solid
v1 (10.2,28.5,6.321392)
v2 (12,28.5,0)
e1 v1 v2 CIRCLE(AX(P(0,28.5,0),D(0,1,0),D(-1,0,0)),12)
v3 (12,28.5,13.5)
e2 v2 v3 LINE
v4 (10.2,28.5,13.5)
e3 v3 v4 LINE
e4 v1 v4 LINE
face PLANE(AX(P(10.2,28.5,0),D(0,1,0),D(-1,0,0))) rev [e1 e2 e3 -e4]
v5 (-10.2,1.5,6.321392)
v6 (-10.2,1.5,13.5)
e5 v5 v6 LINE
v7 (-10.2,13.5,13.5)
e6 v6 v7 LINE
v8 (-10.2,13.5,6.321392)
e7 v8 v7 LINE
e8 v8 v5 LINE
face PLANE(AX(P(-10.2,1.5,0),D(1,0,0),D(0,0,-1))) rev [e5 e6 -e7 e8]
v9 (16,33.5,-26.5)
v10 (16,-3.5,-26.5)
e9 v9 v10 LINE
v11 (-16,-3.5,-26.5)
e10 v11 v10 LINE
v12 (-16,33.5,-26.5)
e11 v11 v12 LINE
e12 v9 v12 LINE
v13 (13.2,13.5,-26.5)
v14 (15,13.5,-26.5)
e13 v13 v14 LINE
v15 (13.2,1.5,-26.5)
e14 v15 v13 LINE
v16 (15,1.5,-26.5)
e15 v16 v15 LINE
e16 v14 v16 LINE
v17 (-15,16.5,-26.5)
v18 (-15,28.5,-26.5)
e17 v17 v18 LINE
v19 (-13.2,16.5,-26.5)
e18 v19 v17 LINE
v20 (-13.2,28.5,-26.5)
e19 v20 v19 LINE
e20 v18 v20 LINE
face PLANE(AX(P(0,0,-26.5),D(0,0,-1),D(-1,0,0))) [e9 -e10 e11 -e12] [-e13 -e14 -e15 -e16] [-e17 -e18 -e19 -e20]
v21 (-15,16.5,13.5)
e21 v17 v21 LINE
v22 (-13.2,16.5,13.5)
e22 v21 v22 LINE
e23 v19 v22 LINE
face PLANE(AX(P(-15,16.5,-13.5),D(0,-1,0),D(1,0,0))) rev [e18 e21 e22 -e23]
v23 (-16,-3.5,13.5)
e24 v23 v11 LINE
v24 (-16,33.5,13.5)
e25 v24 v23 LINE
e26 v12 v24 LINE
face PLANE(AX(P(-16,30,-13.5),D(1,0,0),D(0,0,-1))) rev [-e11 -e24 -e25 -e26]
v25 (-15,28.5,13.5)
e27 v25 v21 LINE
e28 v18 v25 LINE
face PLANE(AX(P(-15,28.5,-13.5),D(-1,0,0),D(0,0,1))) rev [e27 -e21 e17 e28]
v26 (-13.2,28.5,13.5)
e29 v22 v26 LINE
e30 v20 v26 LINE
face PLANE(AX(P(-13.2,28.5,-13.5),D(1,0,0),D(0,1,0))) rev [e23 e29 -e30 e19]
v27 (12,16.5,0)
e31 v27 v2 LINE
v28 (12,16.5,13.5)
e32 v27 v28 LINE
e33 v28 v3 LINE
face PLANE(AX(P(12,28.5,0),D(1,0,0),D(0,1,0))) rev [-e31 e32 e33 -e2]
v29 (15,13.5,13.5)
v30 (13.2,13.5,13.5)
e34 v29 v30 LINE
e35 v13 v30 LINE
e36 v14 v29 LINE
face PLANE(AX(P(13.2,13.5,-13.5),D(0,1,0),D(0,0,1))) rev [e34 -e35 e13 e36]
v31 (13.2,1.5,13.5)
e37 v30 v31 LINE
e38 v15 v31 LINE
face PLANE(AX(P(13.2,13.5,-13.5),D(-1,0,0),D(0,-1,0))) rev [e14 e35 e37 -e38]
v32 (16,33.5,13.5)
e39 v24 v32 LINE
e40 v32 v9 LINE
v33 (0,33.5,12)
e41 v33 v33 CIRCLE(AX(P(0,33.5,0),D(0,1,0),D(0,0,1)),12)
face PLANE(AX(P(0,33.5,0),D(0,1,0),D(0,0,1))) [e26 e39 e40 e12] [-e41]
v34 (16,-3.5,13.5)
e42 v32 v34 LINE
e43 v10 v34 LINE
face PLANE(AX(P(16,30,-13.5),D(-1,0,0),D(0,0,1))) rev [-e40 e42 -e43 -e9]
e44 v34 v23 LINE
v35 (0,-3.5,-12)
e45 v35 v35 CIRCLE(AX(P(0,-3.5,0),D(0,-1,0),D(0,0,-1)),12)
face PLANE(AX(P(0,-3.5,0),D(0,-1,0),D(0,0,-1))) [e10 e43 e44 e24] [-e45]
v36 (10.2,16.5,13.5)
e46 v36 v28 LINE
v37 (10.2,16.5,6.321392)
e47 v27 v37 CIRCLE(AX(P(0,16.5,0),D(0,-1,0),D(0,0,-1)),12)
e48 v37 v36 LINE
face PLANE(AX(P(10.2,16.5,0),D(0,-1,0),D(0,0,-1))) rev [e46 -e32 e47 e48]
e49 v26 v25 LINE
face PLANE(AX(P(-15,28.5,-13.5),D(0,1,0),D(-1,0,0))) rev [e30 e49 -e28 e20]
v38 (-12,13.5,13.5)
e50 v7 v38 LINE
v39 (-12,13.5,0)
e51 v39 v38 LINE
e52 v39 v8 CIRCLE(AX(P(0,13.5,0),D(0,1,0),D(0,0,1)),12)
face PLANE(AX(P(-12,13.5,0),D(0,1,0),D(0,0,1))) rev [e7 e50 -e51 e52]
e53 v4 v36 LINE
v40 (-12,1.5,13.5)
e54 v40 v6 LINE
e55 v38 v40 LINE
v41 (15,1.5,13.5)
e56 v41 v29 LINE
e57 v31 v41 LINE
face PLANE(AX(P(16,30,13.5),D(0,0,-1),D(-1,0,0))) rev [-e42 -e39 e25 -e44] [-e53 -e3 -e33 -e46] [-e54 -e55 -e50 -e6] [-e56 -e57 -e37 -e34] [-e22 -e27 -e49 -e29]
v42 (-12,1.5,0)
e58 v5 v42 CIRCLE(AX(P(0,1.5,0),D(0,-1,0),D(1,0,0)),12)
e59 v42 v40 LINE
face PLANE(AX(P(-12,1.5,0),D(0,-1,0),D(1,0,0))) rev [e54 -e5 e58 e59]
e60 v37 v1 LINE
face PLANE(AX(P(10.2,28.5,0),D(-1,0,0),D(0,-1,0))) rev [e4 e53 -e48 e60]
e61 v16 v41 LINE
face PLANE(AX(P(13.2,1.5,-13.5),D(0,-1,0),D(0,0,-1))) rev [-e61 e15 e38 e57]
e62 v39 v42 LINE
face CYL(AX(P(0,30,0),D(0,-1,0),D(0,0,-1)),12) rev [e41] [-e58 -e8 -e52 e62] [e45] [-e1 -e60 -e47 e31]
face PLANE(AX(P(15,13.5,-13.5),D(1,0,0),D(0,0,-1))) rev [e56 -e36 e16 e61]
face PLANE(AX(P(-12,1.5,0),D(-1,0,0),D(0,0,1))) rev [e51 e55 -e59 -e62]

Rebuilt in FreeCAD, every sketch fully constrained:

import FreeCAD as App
import Part
import Sketcher

doc = App.newDocument("Part")
body = doc.addObject("PartDesign::Body", "Body")

# Sketch on XZ plane
sketch1 = body.newObject("Sketcher::SketchObject", "Sketch")
sketch1.AttachmentSupport = (doc.getObject("XZ_Plane"), [""])
sketch1.MapMode = "FlatFace"
sketch1.addGeometry(Part.LineSegment(App.Vector(-16, -14, 0), App.Vector(-16, 14, 0)), False)
sketch1.addGeometry(Part.LineSegment(App.Vector(-16, 14, 0), App.Vector(16, 14, 0)), False)
sketch1.addGeometry(Part.LineSegment(App.Vector(16, 14, 0), App.Vector(16, -14, 0)), False)
sketch1.addGeometry(Part.LineSegment(App.Vector(16, -14, 0), App.Vector(-16, -14, 0)), False)
sketch1.addGeometry(Part.Circle(App.Vector(0, 0, 0), App.Vector(0, 0, 1), 12), False)
sketch1.addConstraint(Sketcher.Constraint("Coincident", 0, 2, 1, 1))
sketch1.addConstraint(Sketcher.Constraint("Coincident", 1, 2, 2, 1))
sketch1.addConstraint(Sketcher.Constraint("Coincident", 2, 2, 3, 1))
sketch1.addConstraint(Sketcher.Constraint("Coincident", 3, 2, 0, 1))
sketch1.addConstraint(Sketcher.Constraint("Vertical", 0))
sketch1.addConstraint(Sketcher.Constraint("Horizontal", 1))
sketch1.addConstraint(Sketcher.Constraint("Vertical", 2))
sketch1.addConstraint(Sketcher.Constraint("Horizontal", 3))
sketch1.addConstraint(Sketcher.Constraint("Coincident", 4, 3, -1, 1))
sketch1.addConstraint(Sketcher.Constraint("Symmetric", 0, 2, 2, 2, -1, 1))
sketch1.addConstraint(Sketcher.Constraint("Diameter", 4, 24.0))
sketch1.addConstraint(Sketcher.Constraint("DistanceX", 1, 1, 1, 2, 32.0))
sketch1.addConstraint(Sketcher.Constraint("DistanceY", 0, 1, 0, 2, 27.0))
pad1 = body.newObject("PartDesign::Pad", "Pad")
pad1.Profile = sketch1
pad1.Length = 30
pad1.Reversed = True

# Sketch on XY plane
sketch2 = body.newObject("Sketcher::SketchObject", "Sketch001")
sketch2.AttachmentSupport = (doc.getObject("XY_Plane"), [""])
sketch2.MapMode = "FlatFace"
sketch2.AttachmentOffset = App.Placement(App.Vector(0, 0, 13.5), App.Rotation())
sketch2.addGeometry(Part.LineSegment(App.Vector(-12, 13.5, 0), App.Vector(-12, 1.5, 0)), False)
sketch2.addGeometry(Part.LineSegment(App.Vector(-12, 1.5, 0), App.Vector(-10.2, 1.5, 0)), False)
sketch2.addGeometry(Part.LineSegment(App.Vector(-10.2, 1.5, 0), App.Vector(-10.2, 13.5, 0)), False)
sketch2.addGeometry(Part.LineSegment(App.Vector(-10.2, 13.5, 0), App.Vector(-12, 13.5, 0)), False)
sketch2.addGeometry(Part.LineSegment(App.Vector(10.2, 28.5, 0), App.Vector(10.2, 16.5, 0)), False)
sketch2.addGeometry(Part.LineSegment(App.Vector(10.2, 16.5, 0), App.Vector(12, 16.5, 0)), False)
sketch2.addGeometry(Part.LineSegment(App.Vector(12, 16.5, 0), App.Vector(12, 28.5, 0)), False)
sketch2.addGeometry(Part.LineSegment(App.Vector(12, 28.5, 0), App.Vector(10.2, 28.5, 0)), False)
sketch2.addConstraint(Sketcher.Constraint("Coincident", 0, 2, 1, 1))
sketch2.addConstraint(Sketcher.Constraint("Coincident", 1, 2, 2, 1))
sketch2.addConstraint(Sketcher.Constraint("Coincident", 2, 2, 3, 1))
sketch2.addConstraint(Sketcher.Constraint("Coincident", 3, 2, 0, 1))
sketch2.addConstraint(Sketcher.Constraint("Coincident", 4, 2, 5, 1))
sketch2.addConstraint(Sketcher.Constraint("Coincident", 5, 2, 6, 1))
sketch2.addConstraint(Sketcher.Constraint("Coincident", 6, 2, 7, 1))
sketch2.addConstraint(Sketcher.Constraint("Coincident", 7, 2, 4, 1))
sketch2.addConstraint(Sketcher.Constraint("Vertical", 0))
sketch2.addConstraint(Sketcher.Constraint("Horizontal", 1))
sketch2.addConstraint(Sketcher.Constraint("Vertical", 2))
sketch2.addConstraint(Sketcher.Constraint("Horizontal", 3))
sketch2.addConstraint(Sketcher.Constraint("Vertical", 4))
sketch2.addConstraint(Sketcher.Constraint("Horizontal", 5))
sketch2.addConstraint(Sketcher.Constraint("Vertical", 6))
sketch2.addConstraint(Sketcher.Constraint("Horizontal", 7))
sketch2.addConstraint(Sketcher.Constraint("Equal", 3, 5))
sketch2.addConstraint(Sketcher.Constraint("Equal", 2, 4))
sketch2.addConstraint(Sketcher.Constraint("DistanceY", 0, 2, 0, 1, 12.0))
sketch2.addConstraint(Sketcher.Constraint("DistanceX", 1, 1, 1, 2, 1.8))
sketch2.addConstraint(Sketcher.Constraint("DistanceX", 0, 2, -1, 1, 12.0))
sketch2.addConstraint(Sketcher.Constraint("DistanceX", -1, 1, 5, 2, 12.0))
sketch2.addConstraint(Sketcher.Constraint("DistanceY", 2, 2, 4, 2, 3.0))
sketch2.addConstraint(Sketcher.Constraint("DistanceY", -1, 1, 0, 2, 1.5))
pocket1 = body.newObject("PartDesign::Pocket", "Pocket")
pocket1.Profile = sketch2
pocket1.Length = 13.5

# Sketch on XY plane
sketch3 = body.newObject("Sketcher::SketchObject", "Sketch002")
sketch3.AttachmentSupport = (doc.getObject("XY_Plane"), [""])
sketch3.MapMode = "FlatFace"
sketch3.AttachmentOffset = App.Placement(App.Vector(0, 0, 13.5), App.Rotation())
sketch3.addGeometry(Part.LineSegment(App.Vector(-15, 28.5, 0), App.Vector(-15, 16.5, 0)), False)
sketch3.addGeometry(Part.LineSegment(App.Vector(-15, 16.5, 0), App.Vector(-13.2, 16.5, 0)), False)
sketch3.addGeometry(Part.LineSegment(App.Vector(-13.2, 16.5, 0), App.Vector(-13.2, 28.5, 0)), False)
sketch3.addGeometry(Part.LineSegment(App.Vector(-13.2, 28.5, 0), App.Vector(-15, 28.5, 0)), False)
sketch3.addGeometry(Part.LineSegment(App.Vector(13.2, 13.5, 0), App.Vector(13.2, 1.5, 0)), False)
sketch3.addGeometry(Part.LineSegment(App.Vector(13.2, 1.5, 0), App.Vector(15, 1.5, 0)), False)
sketch3.addGeometry(Part.LineSegment(App.Vector(15, 1.5, 0), App.Vector(15, 13.5, 0)), False)
sketch3.addGeometry(Part.LineSegment(App.Vector(15, 13.5, 0), App.Vector(13.2, 13.5, 0)), False)
sketch3.addConstraint(Sketcher.Constraint("Coincident", 0, 2, 1, 1))
sketch3.addConstraint(Sketcher.Constraint("Coincident", 1, 2, 2, 1))
sketch3.addConstraint(Sketcher.Constraint("Coincident", 2, 2, 3, 1))
sketch3.addConstraint(Sketcher.Constraint("Coincident", 3, 2, 0, 1))
sketch3.addConstraint(Sketcher.Constraint("Coincident", 4, 2, 5, 1))
sketch3.addConstraint(Sketcher.Constraint("Coincident", 5, 2, 6, 1))
sketch3.addConstraint(Sketcher.Constraint("Coincident", 6, 2, 7, 1))
sketch3.addConstraint(Sketcher.Constraint("Coincident", 7, 2, 4, 1))
sketch3.addConstraint(Sketcher.Constraint("Vertical", 0))
sketch3.addConstraint(Sketcher.Constraint("Horizontal", 1))
sketch3.addConstraint(Sketcher.Constraint("Vertical", 2))
sketch3.addConstraint(Sketcher.Constraint("Horizontal", 3))
sketch3.addConstraint(Sketcher.Constraint("Vertical", 4))
sketch3.addConstraint(Sketcher.Constraint("Horizontal", 5))
sketch3.addConstraint(Sketcher.Constraint("Vertical", 6))
sketch3.addConstraint(Sketcher.Constraint("Horizontal", 7))
sketch3.addConstraint(Sketcher.Constraint("Equal", 3, 5))
sketch3.addConstraint(Sketcher.Constraint("Equal", 2, 4))
sketch3.addConstraint(Sketcher.Constraint("DistanceY", 0, 2, 0, 1, 12.0))
sketch3.addConstraint(Sketcher.Constraint("DistanceX", 1, 1, 1, 2, 1.8))
sketch3.addConstraint(Sketcher.Constraint("DistanceX", 0, 2, -1, 1, 15.0))
sketch3.addConstraint(Sketcher.Constraint("DistanceX", -1, 1, 5, 2, 15.0))
sketch3.addConstraint(Sketcher.Constraint("DistanceY", 4, 2, 1, 2, 15.0))
sketch3.addConstraint(Sketcher.Constraint("DistanceY", -1, 1, 0, 2, 16.5))
pocket2 = body.newObject("PartDesign::Pocket", "Pocket001")
pocket2.Profile = sketch3
pocket2.Type = "ThroughAll"

# Sketch on XY plane
sketch4 = body.newObject("Sketcher::SketchObject", "Sketch003")
sketch4.AttachmentSupport = (doc.getObject("XY_Plane"), [""])
sketch4.MapMode = "FlatFace"
sketch4.AttachmentOffset = App.Placement(App.Vector(0, 0, -13.5), App.Rotation())
sketch4.addGeometry(Part.LineSegment(App.Vector(16, 30, 0), App.Vector(16, 0, 0)), False)
sketch4.addGeometry(Part.LineSegment(App.Vector(16, 0, 0), App.Vector(-16, 0, 0)), False)
sketch4.addGeometry(Part.LineSegment(App.Vector(-16, 0, 0), App.Vector(-16, 30, 0)), False)
sketch4.addGeometry(Part.LineSegment(App.Vector(-16, 30, 0), App.Vector(16, 30, 0)), False)
sketch4.addGeometry(Part.LineSegment(App.Vector(13.2, 1.5, 0), App.Vector(15, 1.5, 0)), False)
sketch4.addGeometry(Part.LineSegment(App.Vector(15, 1.5, 0), App.Vector(15, 13.5, 0)), False)
sketch4.addGeometry(Part.LineSegment(App.Vector(15, 13.5, 0), App.Vector(13.2, 13.5, 0)), False)
sketch4.addGeometry(Part.LineSegment(App.Vector(13.2, 13.5, 0), App.Vector(13.2, 1.5, 0)), False)
sketch4.addGeometry(Part.LineSegment(App.Vector(-15, 16.5, 0), App.Vector(-13.2, 16.5, 0)), False)
sketch4.addGeometry(Part.LineSegment(App.Vector(-13.2, 16.5, 0), App.Vector(-13.2, 28.5, 0)), False)
sketch4.addGeometry(Part.LineSegment(App.Vector(-13.2, 28.5, 0), App.Vector(-15, 28.5, 0)), False)
sketch4.addGeometry(Part.LineSegment(App.Vector(-15, 28.5, 0), App.Vector(-15, 16.5, 0)), False)
sketch4.addConstraint(Sketcher.Constraint("Coincident", 0, 2, 1, 1))
sketch4.addConstraint(Sketcher.Constraint("Coincident", 1, 2, 2, 1))
sketch4.addConstraint(Sketcher.Constraint("Coincident", 2, 2, 3, 1))
sketch4.addConstraint(Sketcher.Constraint("Coincident", 3, 2, 0, 1))
sketch4.addConstraint(Sketcher.Constraint("Coincident", 4, 2, 5, 1))
sketch4.addConstraint(Sketcher.Constraint("Coincident", 5, 2, 6, 1))
sketch4.addConstraint(Sketcher.Constraint("Coincident", 6, 2, 7, 1))
sketch4.addConstraint(Sketcher.Constraint("Coincident", 7, 2, 4, 1))
sketch4.addConstraint(Sketcher.Constraint("Coincident", 8, 2, 9, 1))
sketch4.addConstraint(Sketcher.Constraint("Coincident", 9, 2, 10, 1))
sketch4.addConstraint(Sketcher.Constraint("Coincident", 10, 2, 11, 1))
sketch4.addConstraint(Sketcher.Constraint("Coincident", 11, 2, 8, 1))
sketch4.addConstraint(Sketcher.Constraint("Vertical", 0))
sketch4.addConstraint(Sketcher.Constraint("Horizontal", 1))
sketch4.addConstraint(Sketcher.Constraint("Vertical", 2))
sketch4.addConstraint(Sketcher.Constraint("Horizontal", 3))
sketch4.addConstraint(Sketcher.Constraint("Horizontal", 4))
sketch4.addConstraint(Sketcher.Constraint("Vertical", 5))
sketch4.addConstraint(Sketcher.Constraint("Horizontal", 6))
sketch4.addConstraint(Sketcher.Constraint("Vertical", 7))
sketch4.addConstraint(Sketcher.Constraint("Horizontal", 8))
sketch4.addConstraint(Sketcher.Constraint("Vertical", 9))
sketch4.addConstraint(Sketcher.Constraint("Horizontal", 10))
sketch4.addConstraint(Sketcher.Constraint("Vertical", 11))
sketch4.addConstraint(Sketcher.Constraint("Symmetric", 0, 2, 1, 2, -1, 1))
sketch4.addConstraint(Sketcher.Constraint("Equal", 6, 8))
sketch4.addConstraint(Sketcher.Constraint("Equal", 7, 9))
sketch4.addConstraint(Sketcher.Constraint("DistanceX", 1, 2, 1, 1, 32.0))
sketch4.addConstraint(Sketcher.Constraint("DistanceY", 0, 2, 0, 1, 30.0))
sketch4.addConstraint(Sketcher.Constraint("DistanceY", 5, 1, 5, 2, 12.0))
sketch4.addConstraint(Sketcher.Constraint("DistanceX", 4, 1, 4, 2, 1.8))
sketch4.addConstraint(Sketcher.Constraint("DistanceX", -1, 1, 4, 2, 15.0))
sketch4.addConstraint(Sketcher.Constraint("DistanceX", 10, 2, -1, 1, 15.0))
sketch4.addConstraint(Sketcher.Constraint("DistanceY", 6, 2, 8, 2, 3.0))
sketch4.addConstraint(Sketcher.Constraint("DistanceY", -1, 1, 4, 2, 1.5))
pad2 = body.newObject("PartDesign::Pad", "Pad001")
pad2.Profile = sketch4
pad2.Length = 13
pad2.Reversed = True

# Sketch on XZ plane
sketch5 = body.newObject("Sketcher::SketchObject", "Sketch004")
sketch5.AttachmentSupport = (doc.getObject("XZ_Plane"), [""])
sketch5.MapMode = "FlatFace"
sketch5.AttachmentOffset = App.Placement(App.Vector(0, 0, -30), App.Rotation())
sketch5.addGeometry(Part.LineSegment(App.Vector(-16, -26, 0), App.Vector(-16, 14, 0)), False)
sketch5.addGeometry(Part.LineSegment(App.Vector(-16, 14, 0), App.Vector(16, 14, 0)), False)
sketch5.addGeometry(Part.LineSegment(App.Vector(16, 14, 0), App.Vector(16, -26, 0)), False)
sketch5.addGeometry(Part.LineSegment(App.Vector(16, -26, 0), App.Vector(-16, -26, 0)), False)
sketch5.addGeometry(Part.Circle(App.Vector(0, 0, 0), App.Vector(0, 0, 1), 12), False)
sketch5.addConstraint(Sketcher.Constraint("Coincident", 0, 2, 1, 1))
sketch5.addConstraint(Sketcher.Constraint("Coincident", 1, 2, 2, 1))
sketch5.addConstraint(Sketcher.Constraint("Coincident", 2, 2, 3, 1))
sketch5.addConstraint(Sketcher.Constraint("Coincident", 3, 2, 0, 1))
sketch5.addConstraint(Sketcher.Constraint("Vertical", 0))
sketch5.addConstraint(Sketcher.Constraint("Horizontal", 1))
sketch5.addConstraint(Sketcher.Constraint("Vertical", 2))
sketch5.addConstraint(Sketcher.Constraint("Horizontal", 3))
sketch5.addConstraint(Sketcher.Constraint("Coincident", 4, 3, -1, 1))
sketch5.addConstraint(Sketcher.Constraint("Diameter", 4, 24.0))
sketch5.addConstraint(Sketcher.Constraint("DistanceX", 1, 1, 1, 2, 32.0))
sketch5.addConstraint(Sketcher.Constraint("DistanceY", 0, 1, 0, 2, 40.0))
sketch5.addConstraint(Sketcher.Constraint("DistanceX", 0, 2, -1, 1, 16.0))
sketch5.addConstraint(Sketcher.Constraint("DistanceY", -1, 1, 0, 2, 13.5))
pad3 = body.newObject("PartDesign::Pad", "Pad002")
pad3.Profile = sketch5
pad3.Length = 3.5
pad3.Reversed = True

# Sketch on XZ plane
sketch6 = body.newObject("Sketcher::SketchObject", "Sketch005")
sketch6.AttachmentSupport = (doc.getObject("XZ_Plane"), [""])
sketch6.MapMode = "FlatFace"
sketch6.AttachmentOffset = App.Placement(App.Vector(0, 0, 3.5), App.Rotation())
sketch6.addGeometry(Part.LineSegment(App.Vector(-16, 14, 0), App.Vector(-16, -26, 0)), False)
sketch6.addGeometry(Part.LineSegment(App.Vector(-16, -26, 0), App.Vector(16, -26, 0)), False)
sketch6.addGeometry(Part.LineSegment(App.Vector(16, -26, 0), App.Vector(16, 14, 0)), False)
sketch6.addGeometry(Part.LineSegment(App.Vector(16, 14, 0), App.Vector(-16, 14, 0)), False)
sketch6.addGeometry(Part.Circle(App.Vector(0, 0, 0), App.Vector(0, 0, 1), 12), False)
sketch6.addConstraint(Sketcher.Constraint("Coincident", 0, 2, 1, 1))
sketch6.addConstraint(Sketcher.Constraint("Coincident", 1, 2, 2, 1))
sketch6.addConstraint(Sketcher.Constraint("Coincident", 2, 2, 3, 1))
sketch6.addConstraint(Sketcher.Constraint("Coincident", 3, 2, 0, 1))
sketch6.addConstraint(Sketcher.Constraint("Vertical", 0))
sketch6.addConstraint(Sketcher.Constraint("Horizontal", 1))
sketch6.addConstraint(Sketcher.Constraint("Vertical", 2))
sketch6.addConstraint(Sketcher.Constraint("Horizontal", 3))
sketch6.addConstraint(Sketcher.Constraint("Coincident", 4, 3, -1, 1))
sketch6.addConstraint(Sketcher.Constraint("Diameter", 4, 24.0))
sketch6.addConstraint(Sketcher.Constraint("DistanceX", 1, 1, 1, 2, 32.0))
sketch6.addConstraint(Sketcher.Constraint("DistanceY", 0, 2, 0, 1, 40.0))
sketch6.addConstraint(Sketcher.Constraint("DistanceX", 0, 2, -1, 1, 16.0))
sketch6.addConstraint(Sketcher.Constraint("DistanceY", 0, 2, -1, 1, 26.5))
pad4 = body.newObject("PartDesign::Pad", "Pad003")
pad4.Profile = sketch6
pad4.Length = 3.5
pad4.Reversed = True

doc.recompute()
